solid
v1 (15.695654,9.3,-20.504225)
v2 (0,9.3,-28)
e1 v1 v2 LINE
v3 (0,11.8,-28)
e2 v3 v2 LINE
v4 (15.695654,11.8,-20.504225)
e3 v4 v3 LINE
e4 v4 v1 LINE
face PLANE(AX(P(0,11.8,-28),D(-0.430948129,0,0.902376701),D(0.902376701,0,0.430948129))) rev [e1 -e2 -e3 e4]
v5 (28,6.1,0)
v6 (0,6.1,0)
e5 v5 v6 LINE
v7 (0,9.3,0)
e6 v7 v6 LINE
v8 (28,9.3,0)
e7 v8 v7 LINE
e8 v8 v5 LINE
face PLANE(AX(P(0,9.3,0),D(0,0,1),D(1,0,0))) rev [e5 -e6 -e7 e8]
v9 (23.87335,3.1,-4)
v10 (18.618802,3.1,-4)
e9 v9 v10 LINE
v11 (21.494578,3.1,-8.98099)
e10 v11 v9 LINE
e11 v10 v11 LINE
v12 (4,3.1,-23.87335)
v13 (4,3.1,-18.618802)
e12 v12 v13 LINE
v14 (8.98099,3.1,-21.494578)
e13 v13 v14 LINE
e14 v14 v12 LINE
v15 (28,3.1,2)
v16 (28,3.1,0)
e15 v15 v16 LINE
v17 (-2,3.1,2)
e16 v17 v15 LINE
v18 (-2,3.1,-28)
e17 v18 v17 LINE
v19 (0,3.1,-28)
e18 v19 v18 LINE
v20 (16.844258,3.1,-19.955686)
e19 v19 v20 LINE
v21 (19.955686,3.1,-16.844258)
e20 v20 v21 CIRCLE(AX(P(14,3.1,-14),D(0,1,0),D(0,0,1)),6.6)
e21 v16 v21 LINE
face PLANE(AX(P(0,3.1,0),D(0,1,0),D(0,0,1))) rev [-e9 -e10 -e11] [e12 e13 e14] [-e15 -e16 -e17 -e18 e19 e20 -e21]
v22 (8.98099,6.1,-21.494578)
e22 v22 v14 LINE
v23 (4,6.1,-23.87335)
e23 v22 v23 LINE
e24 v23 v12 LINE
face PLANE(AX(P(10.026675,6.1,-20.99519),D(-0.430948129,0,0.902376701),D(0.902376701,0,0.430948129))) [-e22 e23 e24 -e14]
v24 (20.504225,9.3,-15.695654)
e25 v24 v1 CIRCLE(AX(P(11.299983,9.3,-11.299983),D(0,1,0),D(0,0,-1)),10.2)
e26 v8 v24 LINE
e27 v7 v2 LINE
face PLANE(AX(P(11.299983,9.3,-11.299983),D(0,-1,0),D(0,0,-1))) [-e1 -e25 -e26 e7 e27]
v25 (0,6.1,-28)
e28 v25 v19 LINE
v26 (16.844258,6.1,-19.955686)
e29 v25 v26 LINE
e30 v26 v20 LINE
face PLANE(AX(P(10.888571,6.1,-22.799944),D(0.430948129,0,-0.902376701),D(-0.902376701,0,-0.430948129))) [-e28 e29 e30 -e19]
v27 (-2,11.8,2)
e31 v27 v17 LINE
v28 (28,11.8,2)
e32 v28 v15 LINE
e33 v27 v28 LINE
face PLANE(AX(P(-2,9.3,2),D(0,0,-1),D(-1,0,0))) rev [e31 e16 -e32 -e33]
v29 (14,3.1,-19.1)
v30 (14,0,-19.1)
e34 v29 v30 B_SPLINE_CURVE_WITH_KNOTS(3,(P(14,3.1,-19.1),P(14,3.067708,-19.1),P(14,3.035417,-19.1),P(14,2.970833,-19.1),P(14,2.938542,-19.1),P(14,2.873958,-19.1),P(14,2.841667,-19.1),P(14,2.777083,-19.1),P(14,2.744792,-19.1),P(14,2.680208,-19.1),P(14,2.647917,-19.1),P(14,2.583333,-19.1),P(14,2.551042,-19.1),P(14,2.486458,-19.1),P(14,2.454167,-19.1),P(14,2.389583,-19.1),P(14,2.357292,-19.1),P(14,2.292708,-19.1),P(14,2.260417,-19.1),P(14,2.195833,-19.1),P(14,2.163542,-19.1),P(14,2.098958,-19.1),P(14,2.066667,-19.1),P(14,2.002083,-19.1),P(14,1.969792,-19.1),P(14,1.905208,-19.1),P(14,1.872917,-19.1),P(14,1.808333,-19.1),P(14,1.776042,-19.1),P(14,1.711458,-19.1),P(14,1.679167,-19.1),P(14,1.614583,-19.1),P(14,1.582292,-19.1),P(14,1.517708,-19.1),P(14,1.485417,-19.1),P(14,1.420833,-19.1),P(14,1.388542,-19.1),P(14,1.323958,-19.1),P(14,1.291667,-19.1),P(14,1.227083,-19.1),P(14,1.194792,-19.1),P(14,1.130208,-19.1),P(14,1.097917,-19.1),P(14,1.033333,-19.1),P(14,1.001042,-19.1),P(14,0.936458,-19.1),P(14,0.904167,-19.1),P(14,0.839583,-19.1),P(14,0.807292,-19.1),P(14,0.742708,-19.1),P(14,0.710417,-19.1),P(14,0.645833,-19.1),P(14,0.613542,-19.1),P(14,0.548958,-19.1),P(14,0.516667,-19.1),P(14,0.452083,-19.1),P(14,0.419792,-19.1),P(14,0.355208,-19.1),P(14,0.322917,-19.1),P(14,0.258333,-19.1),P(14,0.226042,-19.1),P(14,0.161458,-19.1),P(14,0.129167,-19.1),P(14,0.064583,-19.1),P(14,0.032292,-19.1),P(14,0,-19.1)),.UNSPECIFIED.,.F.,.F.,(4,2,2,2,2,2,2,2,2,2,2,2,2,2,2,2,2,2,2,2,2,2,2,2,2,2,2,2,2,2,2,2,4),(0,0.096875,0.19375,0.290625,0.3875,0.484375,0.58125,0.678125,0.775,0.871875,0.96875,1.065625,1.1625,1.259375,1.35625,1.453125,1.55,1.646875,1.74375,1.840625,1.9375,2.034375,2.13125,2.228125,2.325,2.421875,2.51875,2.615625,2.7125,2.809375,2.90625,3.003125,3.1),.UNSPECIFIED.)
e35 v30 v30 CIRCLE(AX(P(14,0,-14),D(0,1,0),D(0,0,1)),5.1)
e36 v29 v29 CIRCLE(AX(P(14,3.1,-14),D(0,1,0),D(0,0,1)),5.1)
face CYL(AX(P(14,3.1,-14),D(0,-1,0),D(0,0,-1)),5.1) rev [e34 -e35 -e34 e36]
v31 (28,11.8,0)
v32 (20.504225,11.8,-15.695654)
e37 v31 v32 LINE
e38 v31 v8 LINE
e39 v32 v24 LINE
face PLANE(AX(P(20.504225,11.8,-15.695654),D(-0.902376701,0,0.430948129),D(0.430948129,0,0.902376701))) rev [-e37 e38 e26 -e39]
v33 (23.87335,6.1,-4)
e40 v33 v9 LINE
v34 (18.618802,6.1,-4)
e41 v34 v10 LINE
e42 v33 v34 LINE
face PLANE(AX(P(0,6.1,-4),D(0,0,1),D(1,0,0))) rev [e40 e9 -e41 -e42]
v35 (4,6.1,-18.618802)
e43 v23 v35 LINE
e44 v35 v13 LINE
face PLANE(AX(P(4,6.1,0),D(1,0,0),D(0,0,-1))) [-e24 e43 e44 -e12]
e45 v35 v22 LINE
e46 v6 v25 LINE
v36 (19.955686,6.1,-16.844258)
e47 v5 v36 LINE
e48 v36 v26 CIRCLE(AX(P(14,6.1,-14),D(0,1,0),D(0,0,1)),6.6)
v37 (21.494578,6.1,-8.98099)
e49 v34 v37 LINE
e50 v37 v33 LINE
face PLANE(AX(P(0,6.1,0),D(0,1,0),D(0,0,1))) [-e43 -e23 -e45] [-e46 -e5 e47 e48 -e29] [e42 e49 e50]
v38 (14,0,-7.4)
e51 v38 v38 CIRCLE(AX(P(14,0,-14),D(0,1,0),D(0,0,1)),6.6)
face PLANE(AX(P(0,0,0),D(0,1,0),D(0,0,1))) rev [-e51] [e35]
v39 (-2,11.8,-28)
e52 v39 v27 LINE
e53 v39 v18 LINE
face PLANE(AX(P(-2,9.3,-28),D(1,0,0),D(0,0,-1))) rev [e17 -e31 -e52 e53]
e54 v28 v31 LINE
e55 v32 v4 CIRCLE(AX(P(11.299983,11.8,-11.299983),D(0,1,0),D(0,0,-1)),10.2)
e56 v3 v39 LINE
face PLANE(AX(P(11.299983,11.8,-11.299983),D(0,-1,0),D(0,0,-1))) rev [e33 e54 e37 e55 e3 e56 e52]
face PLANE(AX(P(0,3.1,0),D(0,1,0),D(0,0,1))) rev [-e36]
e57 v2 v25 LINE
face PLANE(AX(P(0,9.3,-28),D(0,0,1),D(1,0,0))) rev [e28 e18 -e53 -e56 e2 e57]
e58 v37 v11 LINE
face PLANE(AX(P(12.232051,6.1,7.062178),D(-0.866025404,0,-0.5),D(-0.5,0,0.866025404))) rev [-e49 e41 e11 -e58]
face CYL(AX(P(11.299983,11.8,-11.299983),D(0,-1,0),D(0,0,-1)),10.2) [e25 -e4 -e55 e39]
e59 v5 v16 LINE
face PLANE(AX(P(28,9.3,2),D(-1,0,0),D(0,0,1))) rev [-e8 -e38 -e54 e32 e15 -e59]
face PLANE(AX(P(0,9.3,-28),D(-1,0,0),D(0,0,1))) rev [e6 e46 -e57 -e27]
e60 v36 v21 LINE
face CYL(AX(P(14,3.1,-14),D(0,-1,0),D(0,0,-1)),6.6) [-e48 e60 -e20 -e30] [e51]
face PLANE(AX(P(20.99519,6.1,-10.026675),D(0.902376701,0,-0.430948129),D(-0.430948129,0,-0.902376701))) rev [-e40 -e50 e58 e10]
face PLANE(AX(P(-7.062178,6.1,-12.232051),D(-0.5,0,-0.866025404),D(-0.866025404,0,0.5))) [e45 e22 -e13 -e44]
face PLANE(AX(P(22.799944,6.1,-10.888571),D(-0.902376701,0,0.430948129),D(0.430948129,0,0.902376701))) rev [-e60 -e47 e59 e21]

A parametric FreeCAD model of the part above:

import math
import FreeCAD as App
import Part
import Sketcher
from FreeCAD import Vector
Q = App.Units.Quantity

doc = App.newDocument("Part")
body = doc.addObject("PartDesign::Body", "Body")

sketch1 = body.newObject("Sketcher::SketchObject", "Sketch")
sketch1.AttachmentSupport = (doc.getObject("XZ_Plane"), [""])
sketch1.MapMode = "FlatFace"
sketch1.addGeometry([
    Part.ArcOfCircle(Part.Circle(Vector(14, -14, 0), Vector(0, 0, 1), 6.6), math.radians(-135), math.radians(0)),
    Part.ArcOfCircle(Part.Circle(Vector(14, -14, 0), Vector(0, 0, 1), 6.6), math.radians(45), math.radians(225)),
    Part.ArcOfCircle(Part.Circle(Vector(14, -14, 0), Vector(0, 0, 1), 6.6), math.radians(0), math.radians(45)),
    Part.ArcOfCircle(Part.Circle(Vector(14, -14, 0), Vector(0, 0, 1), 5.1), math.radians(0), math.radians(45)),
    Part.ArcOfCircle(Part.Circle(Vector(14, -14, 0), Vector(0, 0, 1), 5.1), math.radians(45), math.radians(225)),
    Part.ArcOfCircle(Part.Circle(Vector(14, -14, 0), Vector(0, 0, 1), 5.1), math.radians(-135), math.radians(0)),
], False)
sketch1.addConstraint([
    Sketcher.Constraint("Tangent", 0, 1, 1, 2),
    Sketcher.Constraint("Tangent", 1, 1, 2, 2),
    Sketcher.Constraint("Tangent", 2, 1, 0, 2),
    Sketcher.Constraint("Tangent", 3, 2, 4, 1),
    Sketcher.Constraint("Tangent", 4, 2, 5, 1),
    Sketcher.Constraint("Tangent", 5, 2, 3, 1),
    Sketcher.Constraint("Coincident", 3, 3, 0, 3),
    Sketcher.Constraint("Horizontal", 5, 3, 2, 1),
    Sketcher.Constraint("Horizontal", 2, 1, 5, 2),
    Sketcher.Constraint("Radius", 0, 6.6),
    Sketcher.Constraint("Radius", 3, 5.1),
    Sketcher.Constraint("DistanceX", -1, 1, 0, 3, 14.0),
    Sketcher.Constraint("DistanceY", 0, 3, -1, 1, 14.0),
    Sketcher.Constraint("DistanceX", 3, 2, 1, 1, 1.06066),
    Sketcher.Constraint("DistanceX", 0, 1, 4, 2, 1.06066),
    Sketcher.Constraint("DistanceX", -1, 1, 0, 1, 9.333095),
    Sketcher.Constraint("DistanceX", -1, 1, 1, 1, 18.666905),
])
pad1 = body.newObject("PartDesign::Pad", "Pad")
pad1.Profile = sketch1
pad1.Length = 3.1
pad1.Reversed = True

sketch2 = body.newObject("Sketcher::SketchObject", "Sketch001")
sketch2.AttachmentSupport = (doc.getObject("XZ_Plane"), [""])
sketch2.MapMode = "FlatFace"
sketch2.AttachmentOffset = App.Placement(Vector(0, 0, -3.1), App.Rotation())
sketch2.addGeometry([
    Part.ArcOfCircle(Part.Circle(Vector(14, -14, 0), Vector(0, 0, 1), 6.6), math.radians(-64.47), math.radians(-45)),
    Part.LineSegment(Vector(16.84, -19.96, 0), Vector(0, -28, 0)),
    Part.LineSegment(Vector(0, -28, 0), Vector(0, 0, 0)),
    Part.LineSegment(Vector(0, 0, 0), Vector(28, 0, 0)),
    Part.LineSegment(Vector(28, 0, 0), Vector(19.96, -16.84, 0)),
    Part.ArcOfCircle(Part.Circle(Vector(14, -14, 0), Vector(0, 0, 1), 6.6), math.radians(-45), math.radians(-25.53)),
    Part.LineSegment(Vector(23.76, -4.24, 0), Vector(23.87, -4, 0)),
    Part.LineSegment(Vector(23.87, -4, 0), Vector(18.62, -4, 0)),
    Part.LineSegment(Vector(18.62, -4, 0), Vector(20.59, -7.41, 0)),
    Part.LineSegment(Vector(20.59, -7.41, 0), Vector(21.49, -8.98, 0)),
    Part.LineSegment(Vector(21.49, -8.98, 0), Vector(23.76, -4.24, 0)),
    Part.LineSegment(Vector(4.24, -23.76, 0), Vector(8.98, -21.49, 0)),
    Part.LineSegment(Vector(8.98, -21.49, 0), Vector(7.41, -20.59, 0)),
    Part.LineSegment(Vector(7.41, -20.59, 0), Vector(4, -18.62, 0)),
    Part.LineSegment(Vector(4, -18.62, 0), Vector(4, -23.87, 0)),
    Part.LineSegment(Vector(4, -23.87, 0), Vector(4.24, -23.76, 0)),
], False)
sketch2.addConstraint([
    Sketcher.Constraint("Tangent", 0, 1, 1, 1),
    Sketcher.Constraint("Coincident", 1, 2, 2, 1),
    Sketcher.Constraint("Coincident", 2, 2, 3, 1),
    Sketcher.Constraint("Coincident", 3, 2, 4, 1),
    Sketcher.Constraint("Tangent", 4, 2, 5, 2),
    Sketcher.Constraint("Tangent", 5, 1, 0, 2),
    Sketcher.Constraint("Coincident", 6, 2, 7, 1),
    Sketcher.Constraint("Coincident", 7, 2, 8, 1),
    Sketcher.Constraint("Coincident", 8, 2, 9, 1),
    Sketcher.Constraint("Coincident", 9, 2, 10, 1),
    Sketcher.Constraint("Coincident", 10, 2, 6, 1),
    Sketcher.Constraint("Coincident", 11, 2, 12, 1),
    Sketcher.Constraint("Coincident", 12, 2, 13, 1),
    Sketcher.Constraint("Coincident", 13, 2, 14, 1),
    Sketcher.Constraint("Coincident", 14, 2, 15, 1),
    Sketcher.Constraint("Coincident", 15, 2, 11, 1),
    Sketcher.Constraint("Vertical", 2),
    Sketcher.Constraint("Horizontal", 3),
    Sketcher.Constraint("Horizontal", 7),
    Sketcher.Constraint("Vertical", 14),
    Sketcher.Constraint("Coincident", 2, 2, -1, 1),
    Sketcher.Constraint("Equal", 0, 5),
    Sketcher.Constraint("Parallel", 4, 6),
    Sketcher.Constraint("Parallel", 8, 9),
    Sketcher.Constraint("Parallel", 6, 10),
    Sketcher.Constraint("Parallel", 1, 11),
    Sketcher.Constraint("Parallel", 12, 13),
    Sketcher.Constraint("Parallel", 11, 15),
    Sketcher.Constraint("Equal", 3, 2),
    Sketcher.Constraint("Equal", 7, 14),
    Sketcher.Constraint("Equal", 1, 4),
    Sketcher.Constraint("Equal", 10, 11),
    Sketcher.Constraint("Equal", 9, 12),
    Sketcher.Constraint("Equal", 8, 13),
    Sketcher.Constraint("Radius", 0, 6.6),
    Sketcher.Constraint("DistanceX", 3, 1, 3, 2, 28.0),
    Sketcher.Constraint("Angle", 8, Q("-60 deg")),
    Sketcher.Constraint("DistanceX", -1, 1, 0, 3, 14.0),
    Sketcher.Constraint("DistanceY", 6, 2, -1, 1, 4.0),
    Sketcher.Constraint("DistanceX", -1, 1, 13, 2, 4.0),
    Sketcher.Constraint("DistanceX", 7, 2, 7, 1, 5.254548),
    Sketcher.Constraint("Distance", 6, 0.268651),
    Sketcher.Constraint("Distance", 8, 3.93931),
    Sketcher.Constraint("DistanceX", -1, 1, 6, 2, 23.87335),
    Sketcher.Constraint("DistanceY", 11, 2, -1, 1, 21.494578),
    Sketcher.Constraint("DistanceY", 0, 1, 5, 1, 1.288781),
])
pad2 = body.newObject("PartDesign::Pad", "Pad001")
pad2.Profile = sketch2
pad2.Length = 3
pad2.Reversed = True

sketch3 = body.newObject("Sketcher::SketchObject", "Sketch002")
sketch3.AttachmentSupport = (doc.getObject("XZ_Plane"), [""])
sketch3.MapMode = "FlatFace"
sketch3.AttachmentOffset = App.Placement(Vector(0, 0, -6.1), App.Rotation())
sketch3.addGeometry([
    Part.LineSegment(Vector(0, -28, 0), Vector(-2, -28, 0)),
    Part.LineSegment(Vector(-2, -28, 0), Vector(-2, 2, 0)),
    Part.LineSegment(Vector(-2, 2, 0), Vector(28, 2, 0)),
    Part.LineSegment(Vector(28, 2, 0), Vector(28, 0, 0)),
    Part.LineSegment(Vector(28, 0, 0), Vector(0, 0, 0)),
    Part.LineSegment(Vector(0, 0, 0), Vector(0, -28, 0)),
], False)
sketch3.addConstraint([
    Sketcher.Constraint("Coincident", 0, 2, 1, 1),
    Sketcher.Constraint("Coincident", 1, 2, 2, 1),
    Sketcher.Constraint("Coincident", 2, 2, 3, 1),
    Sketcher.Constraint("Coincident", 3, 2, 4, 1),
    Sketcher.Constraint("Coincident", 4, 2, 5, 1),
    Sketcher.Constraint("Coincident", 5, 2, 0, 1),
    Sketcher.Constraint("Horizontal", 0),
    Sketcher.Constraint("Vertical", 1),
    Sketcher.Constraint("Horizontal", 2),
    Sketcher.Constraint("Vertical", 3),
    Sketcher.Constraint("Horizontal", 4),
    Sketcher.Constraint("Vertical", 5),
    Sketcher.Constraint("Coincident", 4, 2, -1, 1),
    Sketcher.Constraint("Equal", 2, 1),
    Sketcher.Constraint("Equal", 0, 3),
    Sketcher.Constraint("DistanceX", 0, 2, 0, 1, 2.0),
    Sketcher.Constraint("DistanceX", 2, 1, 2, 2, 30.0),
])
pad3 = body.newObject("PartDesign::Pad", "Pad002")
pad3.Profile = sketch3
pad3.Type = "TwoLengths"
pad3.Length = 3.2
pad3.Length2 = 3
pad3.Reversed = True

sketch4 = body.newObject("Sketcher::SketchObject", "Sketch003")
sketch4.AttachmentSupport = (doc.getObject("XZ_Plane"), [""])
sketch4.MapMode = "FlatFace"
sketch4.AttachmentOffset = App.Placement(Vector(0, 0, -9.3), App.Rotation())
sketch4.addGeometry([
    Part.LineSegment(Vector(0, -28, 0), Vector(-2, -28, 0)),
    Part.LineSegment(Vector(-2, -28, 0), Vector(-2, 2, 0)),
    Part.LineSegment(Vector(-2, 2, 0), Vector(28, 2, 0)),
    Part.LineSegment(Vector(28, 2, 0), Vector(28, 0, 0)),
    Part.LineSegment(Vector(28, 0, 0), Vector(20.5, -15.7, 0)),
    Part.ArcOfCircle(Part.Circle(Vector(11.3, -11.3, 0), Vector(0, 0, 1), 10.2), math.radians(-64), math.radians(-26)),
    Part.LineSegment(Vector(15.7, -20.5, 0), Vector(0, -28, 0)),
], False)
sketch4.addConstraint([
    Sketcher.Constraint("Coincident", 0, 2, 1, 1),
    Sketcher.Constraint("Coincident", 1, 2, 2, 1),
    Sketcher.Constraint("Coincident", 2, 2, 3, 1),
    Sketcher.Constraint("Coincident", 3, 2, 4, 1),
    Sketcher.Constraint("Tangent", 4, 2, 5, 2),
    Sketcher.Constraint("Tangent", 5, 1, 6, 1),
    Sketcher.Constraint("Coincident", 6, 2, 0, 1),
    Sketcher.Constraint("Horizontal", 0),
    Sketcher.Constraint("Vertical", 1),
    Sketcher.Constraint("Horizontal", 2),
    Sketcher.Constraint("Vertical", 3),
    Sketcher.Constraint("PointOnObject", 3, 2, -1),
    Sketcher.Constraint("PointOnObject", 6, 2, -2),
    Sketcher.Constraint("Equal", 2, 1),
    Sketcher.Constraint("Equal", 0, 3),
    Sketcher.Constraint("Equal", 4, 6),
    Sketcher.Constraint("Radius", 5, 10.2),
    Sketcher.Constraint("DistanceX", 0, 2, 0, 1, 2.0),
    Sketcher.Constraint("DistanceX", 2, 1, 2, 2, 30.0),
    Sketcher.Constraint("DistanceY", 4, 2, 5, 3, 4.395671),
])
pad4 = body.newObject("PartDesign::Pad", "Pad003")
pad4.Profile = sketch4
pad4.Length = 2.5
pad4.Reversed = True

doc.recompute()
